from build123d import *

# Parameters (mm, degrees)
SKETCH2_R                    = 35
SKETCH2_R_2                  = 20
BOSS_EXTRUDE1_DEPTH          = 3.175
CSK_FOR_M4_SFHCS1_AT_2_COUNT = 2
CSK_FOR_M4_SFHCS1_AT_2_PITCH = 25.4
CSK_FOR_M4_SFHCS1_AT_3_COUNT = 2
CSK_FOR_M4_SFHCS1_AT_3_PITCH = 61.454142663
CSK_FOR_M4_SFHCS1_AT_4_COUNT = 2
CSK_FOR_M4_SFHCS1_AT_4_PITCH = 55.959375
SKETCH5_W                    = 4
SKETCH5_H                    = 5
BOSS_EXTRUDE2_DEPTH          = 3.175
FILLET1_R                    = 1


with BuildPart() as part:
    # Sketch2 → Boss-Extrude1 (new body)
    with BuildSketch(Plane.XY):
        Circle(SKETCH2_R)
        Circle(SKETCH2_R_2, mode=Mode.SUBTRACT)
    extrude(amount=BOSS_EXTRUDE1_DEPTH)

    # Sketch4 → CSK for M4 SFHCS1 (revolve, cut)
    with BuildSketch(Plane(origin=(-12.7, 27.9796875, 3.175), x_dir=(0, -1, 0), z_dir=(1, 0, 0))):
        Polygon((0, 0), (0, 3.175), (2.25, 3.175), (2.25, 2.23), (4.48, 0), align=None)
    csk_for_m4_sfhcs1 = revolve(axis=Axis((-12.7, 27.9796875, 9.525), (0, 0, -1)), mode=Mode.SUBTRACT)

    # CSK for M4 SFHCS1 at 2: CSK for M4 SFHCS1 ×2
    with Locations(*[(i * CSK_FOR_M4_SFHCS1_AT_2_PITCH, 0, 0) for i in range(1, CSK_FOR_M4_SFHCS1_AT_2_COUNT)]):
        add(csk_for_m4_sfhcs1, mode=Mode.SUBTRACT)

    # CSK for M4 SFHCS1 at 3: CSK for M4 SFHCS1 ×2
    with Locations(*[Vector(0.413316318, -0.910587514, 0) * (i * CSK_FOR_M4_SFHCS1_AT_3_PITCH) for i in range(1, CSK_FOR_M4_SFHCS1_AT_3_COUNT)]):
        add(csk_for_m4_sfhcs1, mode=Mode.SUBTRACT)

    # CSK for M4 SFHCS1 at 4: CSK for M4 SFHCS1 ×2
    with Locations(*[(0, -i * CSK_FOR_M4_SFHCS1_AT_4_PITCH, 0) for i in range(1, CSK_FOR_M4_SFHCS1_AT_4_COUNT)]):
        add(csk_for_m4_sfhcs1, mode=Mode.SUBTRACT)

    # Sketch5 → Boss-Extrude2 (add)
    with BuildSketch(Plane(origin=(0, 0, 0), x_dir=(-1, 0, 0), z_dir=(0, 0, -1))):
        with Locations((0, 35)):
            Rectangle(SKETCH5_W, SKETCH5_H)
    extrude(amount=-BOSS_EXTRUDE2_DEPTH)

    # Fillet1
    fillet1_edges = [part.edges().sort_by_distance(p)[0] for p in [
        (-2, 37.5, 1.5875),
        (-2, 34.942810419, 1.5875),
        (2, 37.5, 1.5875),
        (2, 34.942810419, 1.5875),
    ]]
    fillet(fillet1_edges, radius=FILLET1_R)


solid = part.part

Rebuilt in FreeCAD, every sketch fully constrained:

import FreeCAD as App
import Part
import Sketcher

V = App.Vector
Q = App.Units.Quantity


def edges_at(feature, points):
    """Names of the edges that pass closest to the given points."""
    edges = feature.Shape.Edges
    near = lambda p: min(range(len(edges)), key=lambda i: edges[i].distToShape(Part.Vertex(*p))[0])
    return sorted({f"Edge{near(p) + 1}" for p in points})

doc = App.newDocument("Part")
body = doc.addObject("PartDesign::Body", "Body")

sketch1 = body.newObject("Sketcher::SketchObject", "Sketch")
sketch1.AttachmentSupport = (doc.getObject("XY_Plane"), [""])
sketch1.MapMode = "FlatFace"
sketch1.addGeometry([
    Part.Circle(V(0, 0, 0), V(0, 0, 1), 35),
    Part.Circle(V(0, 0, 0), V(0, 0, 1), 20),
], False)
sketch1.addConstraint([
    Sketcher.Constraint("Coincident", 0, 3, -1, 1),
    Sketcher.Constraint("Coincident", 1, 3, -1, 1),
    Sketcher.Constraint("Diameter", 0, 70.0),
    Sketcher.Constraint("Diameter", 1, 40.0),
])
pad1 = body.newObject("PartDesign::Pad", "Pad")
pad1.Profile = sketch1
pad1.Length = 3.175

sketch2 = body.newObject("Sketcher::SketchObject", "Sketch001")
sketch2.AttachmentSupport = (doc.getObject("YZ_Plane"), [""])
sketch2.MapMode = "FlatFace"
sketch2.AttachmentOffset = App.Placement(V(0, 0, -12.7), App.Rotation())
sketch2.addGeometry([
    Part.LineSegment(V(28, 0, 0), V(28, 3.2, 0)),
    Part.LineSegment(V(28, 3.2, 0), V(23.5, 3.2, 0)),
    Part.LineSegment(V(23.5, 3.2, 0), V(25.7, 0.9, 0)),
    Part.LineSegment(V(25.7, 0.9, 0), V(25.7, 0, 0)),
    Part.LineSegment(V(25.7, 0, 0), V(28, 0, 0)),
], False)
sketch2.addGeometry(Part.LineSegment(V(28, 3.2, 0), V(28, 0, 0)), True)
sketch2.addConstraint([
    Sketcher.Constraint("Coincident", 0, 2, 1, 1),
    Sketcher.Constraint("Coincident", 1, 2, 2, 1),
    Sketcher.Constraint("Coincident", 2, 2, 3, 1),
    Sketcher.Constraint("Coincident", 3, 2, 4, 1),
    Sketcher.Constraint("Coincident", 4, 2, 0, 1),
    Sketcher.Constraint("Vertical", 0),
    Sketcher.Constraint("Horizontal", 1),
    Sketcher.Constraint("Vertical", 3),
    Sketcher.Constraint("Horizontal", 4),
    Sketcher.Constraint("Vertical", 5),
    Sketcher.Constraint("Coincident", 5, 1, 0, 2),
    Sketcher.Constraint("PointOnObject", 3, 2, -1),
    Sketcher.Constraint("PointOnObject", 5, 2, -1),
    Sketcher.Constraint("Angle", 2, Q("-45 deg")),
    Sketcher.Constraint("DistanceX", 1, 2, 1, 1, 4.48),
    Sketcher.Constraint("DistanceX", 4, 1, 4, 2, 2.25),
    Sketcher.Constraint("DistanceY", 0, 1, 0, 2, 3.175),
    Sketcher.Constraint("DistanceX", -1, 1, 0, 2, 27.979688),
])
groove = body.newObject("PartDesign::Groove", "Groove")
groove.Profile = sketch2
groove.ReferenceAxis = (sketch2, ["Axis0"])
groove.Angle = 360
doc.recompute()

linearpattern = body.newObject("PartDesign::LinearPattern", "LinearPattern")
linearpattern.Originals = [groove]
linearpattern.Direction = (doc.getObject("X_Axis"), [""])
linearpattern.Mode = "offset"
linearpattern.Offset = 25.4
linearpattern.Occurrences = 2
body.Tip = linearpattern
doc.recompute()

datumline = body.newObject("PartDesign::Line", "DatumLine")
datumline.Placement = App.Placement(V(0, 0, 0), App.Rotation(V(0, 0, 1), V(0.413316318, -0.910587514, 0)))
linearpattern2 = body.newObject("PartDesign::LinearPattern", "LinearPattern001")
linearpattern2.Originals = [groove]
linearpattern2.Direction = (datumline, [""])
linearpattern2.Mode = "offset"
linearpattern2.Offset = 61.454143
linearpattern2.Occurrences = 2
body.Tip = linearpattern2
doc.recompute()

linearpattern3 = body.newObject("PartDesign::LinearPattern", "LinearPattern002")
linearpattern3.Originals = [groove]
linearpattern3.Direction = (doc.getObject("Y_Axis"), [""])
linearpattern3.Mode = "offset"
linearpattern3.Offset = 55.959375
linearpattern3.Occurrences = 2
linearpattern3.Reversed = True
body.Tip = linearpattern3

sketch3 = body.newObject("Sketcher::SketchObject", "Sketch002")
sketch3.AttachmentSupport = (doc.getObject("XY_Plane"), [""])
sketch3.MapMode = "FlatFace"
sketch3.addGeometry([
    Part.LineSegment(V(2, 37.5, 0), V(2, 32.5, 0)),
    Part.LineSegment(V(2, 32.5, 0), V(-2, 32.5, 0)),
    Part.LineSegment(V(-2, 32.5, 0), V(-2, 37.5, 0)),
    Part.LineSegment(V(-2, 37.5, 0), V(2, 37.5, 0)),
], False)
sketch3.addConstraint([
    Sketcher.Constraint("Coincident", 0, 2, 1, 1),
    Sketcher.Constraint("Coincident", 1, 2, 2, 1),
    Sketcher.Constraint("Coincident", 2, 2, 3, 1),
    Sketcher.Constraint("Coincident", 3, 2, 0, 1),
    Sketcher.Constraint("Vertical", 0),
    Sketcher.Constraint("Horizontal", 1),
    Sketcher.Constraint("Vertical", 2),
    Sketcher.Constraint("Horizontal", 3),
    Sketcher.Constraint("DistanceX", 1, 2, 1, 1, 4.0),
    Sketcher.Constraint("DistanceY", 0, 2, 0, 1, 5.0),
    Sketcher.Constraint("DistanceX", -1, 1, 0, 2, 2.0),
    Sketcher.Constraint("DistanceY", -1, 1, 0, 2, 32.5),
])
pad2 = body.newObject("PartDesign::Pad", "Pad001")
pad2.Profile = sketch3
pad2.Length = 3.175
doc.recompute()

fillet = body.newObject("PartDesign::Fillet", "Fillet")
fillet.Base = (pad2, edges_at(pad2, [
    (-2, 37.5, 1.587),
    (-2, 34.943, 1.587),
    (2, 37.5, 1.587),
    (2, 34.943, 1.587),
]))
fillet.Radius = 1

doc.recompute()
